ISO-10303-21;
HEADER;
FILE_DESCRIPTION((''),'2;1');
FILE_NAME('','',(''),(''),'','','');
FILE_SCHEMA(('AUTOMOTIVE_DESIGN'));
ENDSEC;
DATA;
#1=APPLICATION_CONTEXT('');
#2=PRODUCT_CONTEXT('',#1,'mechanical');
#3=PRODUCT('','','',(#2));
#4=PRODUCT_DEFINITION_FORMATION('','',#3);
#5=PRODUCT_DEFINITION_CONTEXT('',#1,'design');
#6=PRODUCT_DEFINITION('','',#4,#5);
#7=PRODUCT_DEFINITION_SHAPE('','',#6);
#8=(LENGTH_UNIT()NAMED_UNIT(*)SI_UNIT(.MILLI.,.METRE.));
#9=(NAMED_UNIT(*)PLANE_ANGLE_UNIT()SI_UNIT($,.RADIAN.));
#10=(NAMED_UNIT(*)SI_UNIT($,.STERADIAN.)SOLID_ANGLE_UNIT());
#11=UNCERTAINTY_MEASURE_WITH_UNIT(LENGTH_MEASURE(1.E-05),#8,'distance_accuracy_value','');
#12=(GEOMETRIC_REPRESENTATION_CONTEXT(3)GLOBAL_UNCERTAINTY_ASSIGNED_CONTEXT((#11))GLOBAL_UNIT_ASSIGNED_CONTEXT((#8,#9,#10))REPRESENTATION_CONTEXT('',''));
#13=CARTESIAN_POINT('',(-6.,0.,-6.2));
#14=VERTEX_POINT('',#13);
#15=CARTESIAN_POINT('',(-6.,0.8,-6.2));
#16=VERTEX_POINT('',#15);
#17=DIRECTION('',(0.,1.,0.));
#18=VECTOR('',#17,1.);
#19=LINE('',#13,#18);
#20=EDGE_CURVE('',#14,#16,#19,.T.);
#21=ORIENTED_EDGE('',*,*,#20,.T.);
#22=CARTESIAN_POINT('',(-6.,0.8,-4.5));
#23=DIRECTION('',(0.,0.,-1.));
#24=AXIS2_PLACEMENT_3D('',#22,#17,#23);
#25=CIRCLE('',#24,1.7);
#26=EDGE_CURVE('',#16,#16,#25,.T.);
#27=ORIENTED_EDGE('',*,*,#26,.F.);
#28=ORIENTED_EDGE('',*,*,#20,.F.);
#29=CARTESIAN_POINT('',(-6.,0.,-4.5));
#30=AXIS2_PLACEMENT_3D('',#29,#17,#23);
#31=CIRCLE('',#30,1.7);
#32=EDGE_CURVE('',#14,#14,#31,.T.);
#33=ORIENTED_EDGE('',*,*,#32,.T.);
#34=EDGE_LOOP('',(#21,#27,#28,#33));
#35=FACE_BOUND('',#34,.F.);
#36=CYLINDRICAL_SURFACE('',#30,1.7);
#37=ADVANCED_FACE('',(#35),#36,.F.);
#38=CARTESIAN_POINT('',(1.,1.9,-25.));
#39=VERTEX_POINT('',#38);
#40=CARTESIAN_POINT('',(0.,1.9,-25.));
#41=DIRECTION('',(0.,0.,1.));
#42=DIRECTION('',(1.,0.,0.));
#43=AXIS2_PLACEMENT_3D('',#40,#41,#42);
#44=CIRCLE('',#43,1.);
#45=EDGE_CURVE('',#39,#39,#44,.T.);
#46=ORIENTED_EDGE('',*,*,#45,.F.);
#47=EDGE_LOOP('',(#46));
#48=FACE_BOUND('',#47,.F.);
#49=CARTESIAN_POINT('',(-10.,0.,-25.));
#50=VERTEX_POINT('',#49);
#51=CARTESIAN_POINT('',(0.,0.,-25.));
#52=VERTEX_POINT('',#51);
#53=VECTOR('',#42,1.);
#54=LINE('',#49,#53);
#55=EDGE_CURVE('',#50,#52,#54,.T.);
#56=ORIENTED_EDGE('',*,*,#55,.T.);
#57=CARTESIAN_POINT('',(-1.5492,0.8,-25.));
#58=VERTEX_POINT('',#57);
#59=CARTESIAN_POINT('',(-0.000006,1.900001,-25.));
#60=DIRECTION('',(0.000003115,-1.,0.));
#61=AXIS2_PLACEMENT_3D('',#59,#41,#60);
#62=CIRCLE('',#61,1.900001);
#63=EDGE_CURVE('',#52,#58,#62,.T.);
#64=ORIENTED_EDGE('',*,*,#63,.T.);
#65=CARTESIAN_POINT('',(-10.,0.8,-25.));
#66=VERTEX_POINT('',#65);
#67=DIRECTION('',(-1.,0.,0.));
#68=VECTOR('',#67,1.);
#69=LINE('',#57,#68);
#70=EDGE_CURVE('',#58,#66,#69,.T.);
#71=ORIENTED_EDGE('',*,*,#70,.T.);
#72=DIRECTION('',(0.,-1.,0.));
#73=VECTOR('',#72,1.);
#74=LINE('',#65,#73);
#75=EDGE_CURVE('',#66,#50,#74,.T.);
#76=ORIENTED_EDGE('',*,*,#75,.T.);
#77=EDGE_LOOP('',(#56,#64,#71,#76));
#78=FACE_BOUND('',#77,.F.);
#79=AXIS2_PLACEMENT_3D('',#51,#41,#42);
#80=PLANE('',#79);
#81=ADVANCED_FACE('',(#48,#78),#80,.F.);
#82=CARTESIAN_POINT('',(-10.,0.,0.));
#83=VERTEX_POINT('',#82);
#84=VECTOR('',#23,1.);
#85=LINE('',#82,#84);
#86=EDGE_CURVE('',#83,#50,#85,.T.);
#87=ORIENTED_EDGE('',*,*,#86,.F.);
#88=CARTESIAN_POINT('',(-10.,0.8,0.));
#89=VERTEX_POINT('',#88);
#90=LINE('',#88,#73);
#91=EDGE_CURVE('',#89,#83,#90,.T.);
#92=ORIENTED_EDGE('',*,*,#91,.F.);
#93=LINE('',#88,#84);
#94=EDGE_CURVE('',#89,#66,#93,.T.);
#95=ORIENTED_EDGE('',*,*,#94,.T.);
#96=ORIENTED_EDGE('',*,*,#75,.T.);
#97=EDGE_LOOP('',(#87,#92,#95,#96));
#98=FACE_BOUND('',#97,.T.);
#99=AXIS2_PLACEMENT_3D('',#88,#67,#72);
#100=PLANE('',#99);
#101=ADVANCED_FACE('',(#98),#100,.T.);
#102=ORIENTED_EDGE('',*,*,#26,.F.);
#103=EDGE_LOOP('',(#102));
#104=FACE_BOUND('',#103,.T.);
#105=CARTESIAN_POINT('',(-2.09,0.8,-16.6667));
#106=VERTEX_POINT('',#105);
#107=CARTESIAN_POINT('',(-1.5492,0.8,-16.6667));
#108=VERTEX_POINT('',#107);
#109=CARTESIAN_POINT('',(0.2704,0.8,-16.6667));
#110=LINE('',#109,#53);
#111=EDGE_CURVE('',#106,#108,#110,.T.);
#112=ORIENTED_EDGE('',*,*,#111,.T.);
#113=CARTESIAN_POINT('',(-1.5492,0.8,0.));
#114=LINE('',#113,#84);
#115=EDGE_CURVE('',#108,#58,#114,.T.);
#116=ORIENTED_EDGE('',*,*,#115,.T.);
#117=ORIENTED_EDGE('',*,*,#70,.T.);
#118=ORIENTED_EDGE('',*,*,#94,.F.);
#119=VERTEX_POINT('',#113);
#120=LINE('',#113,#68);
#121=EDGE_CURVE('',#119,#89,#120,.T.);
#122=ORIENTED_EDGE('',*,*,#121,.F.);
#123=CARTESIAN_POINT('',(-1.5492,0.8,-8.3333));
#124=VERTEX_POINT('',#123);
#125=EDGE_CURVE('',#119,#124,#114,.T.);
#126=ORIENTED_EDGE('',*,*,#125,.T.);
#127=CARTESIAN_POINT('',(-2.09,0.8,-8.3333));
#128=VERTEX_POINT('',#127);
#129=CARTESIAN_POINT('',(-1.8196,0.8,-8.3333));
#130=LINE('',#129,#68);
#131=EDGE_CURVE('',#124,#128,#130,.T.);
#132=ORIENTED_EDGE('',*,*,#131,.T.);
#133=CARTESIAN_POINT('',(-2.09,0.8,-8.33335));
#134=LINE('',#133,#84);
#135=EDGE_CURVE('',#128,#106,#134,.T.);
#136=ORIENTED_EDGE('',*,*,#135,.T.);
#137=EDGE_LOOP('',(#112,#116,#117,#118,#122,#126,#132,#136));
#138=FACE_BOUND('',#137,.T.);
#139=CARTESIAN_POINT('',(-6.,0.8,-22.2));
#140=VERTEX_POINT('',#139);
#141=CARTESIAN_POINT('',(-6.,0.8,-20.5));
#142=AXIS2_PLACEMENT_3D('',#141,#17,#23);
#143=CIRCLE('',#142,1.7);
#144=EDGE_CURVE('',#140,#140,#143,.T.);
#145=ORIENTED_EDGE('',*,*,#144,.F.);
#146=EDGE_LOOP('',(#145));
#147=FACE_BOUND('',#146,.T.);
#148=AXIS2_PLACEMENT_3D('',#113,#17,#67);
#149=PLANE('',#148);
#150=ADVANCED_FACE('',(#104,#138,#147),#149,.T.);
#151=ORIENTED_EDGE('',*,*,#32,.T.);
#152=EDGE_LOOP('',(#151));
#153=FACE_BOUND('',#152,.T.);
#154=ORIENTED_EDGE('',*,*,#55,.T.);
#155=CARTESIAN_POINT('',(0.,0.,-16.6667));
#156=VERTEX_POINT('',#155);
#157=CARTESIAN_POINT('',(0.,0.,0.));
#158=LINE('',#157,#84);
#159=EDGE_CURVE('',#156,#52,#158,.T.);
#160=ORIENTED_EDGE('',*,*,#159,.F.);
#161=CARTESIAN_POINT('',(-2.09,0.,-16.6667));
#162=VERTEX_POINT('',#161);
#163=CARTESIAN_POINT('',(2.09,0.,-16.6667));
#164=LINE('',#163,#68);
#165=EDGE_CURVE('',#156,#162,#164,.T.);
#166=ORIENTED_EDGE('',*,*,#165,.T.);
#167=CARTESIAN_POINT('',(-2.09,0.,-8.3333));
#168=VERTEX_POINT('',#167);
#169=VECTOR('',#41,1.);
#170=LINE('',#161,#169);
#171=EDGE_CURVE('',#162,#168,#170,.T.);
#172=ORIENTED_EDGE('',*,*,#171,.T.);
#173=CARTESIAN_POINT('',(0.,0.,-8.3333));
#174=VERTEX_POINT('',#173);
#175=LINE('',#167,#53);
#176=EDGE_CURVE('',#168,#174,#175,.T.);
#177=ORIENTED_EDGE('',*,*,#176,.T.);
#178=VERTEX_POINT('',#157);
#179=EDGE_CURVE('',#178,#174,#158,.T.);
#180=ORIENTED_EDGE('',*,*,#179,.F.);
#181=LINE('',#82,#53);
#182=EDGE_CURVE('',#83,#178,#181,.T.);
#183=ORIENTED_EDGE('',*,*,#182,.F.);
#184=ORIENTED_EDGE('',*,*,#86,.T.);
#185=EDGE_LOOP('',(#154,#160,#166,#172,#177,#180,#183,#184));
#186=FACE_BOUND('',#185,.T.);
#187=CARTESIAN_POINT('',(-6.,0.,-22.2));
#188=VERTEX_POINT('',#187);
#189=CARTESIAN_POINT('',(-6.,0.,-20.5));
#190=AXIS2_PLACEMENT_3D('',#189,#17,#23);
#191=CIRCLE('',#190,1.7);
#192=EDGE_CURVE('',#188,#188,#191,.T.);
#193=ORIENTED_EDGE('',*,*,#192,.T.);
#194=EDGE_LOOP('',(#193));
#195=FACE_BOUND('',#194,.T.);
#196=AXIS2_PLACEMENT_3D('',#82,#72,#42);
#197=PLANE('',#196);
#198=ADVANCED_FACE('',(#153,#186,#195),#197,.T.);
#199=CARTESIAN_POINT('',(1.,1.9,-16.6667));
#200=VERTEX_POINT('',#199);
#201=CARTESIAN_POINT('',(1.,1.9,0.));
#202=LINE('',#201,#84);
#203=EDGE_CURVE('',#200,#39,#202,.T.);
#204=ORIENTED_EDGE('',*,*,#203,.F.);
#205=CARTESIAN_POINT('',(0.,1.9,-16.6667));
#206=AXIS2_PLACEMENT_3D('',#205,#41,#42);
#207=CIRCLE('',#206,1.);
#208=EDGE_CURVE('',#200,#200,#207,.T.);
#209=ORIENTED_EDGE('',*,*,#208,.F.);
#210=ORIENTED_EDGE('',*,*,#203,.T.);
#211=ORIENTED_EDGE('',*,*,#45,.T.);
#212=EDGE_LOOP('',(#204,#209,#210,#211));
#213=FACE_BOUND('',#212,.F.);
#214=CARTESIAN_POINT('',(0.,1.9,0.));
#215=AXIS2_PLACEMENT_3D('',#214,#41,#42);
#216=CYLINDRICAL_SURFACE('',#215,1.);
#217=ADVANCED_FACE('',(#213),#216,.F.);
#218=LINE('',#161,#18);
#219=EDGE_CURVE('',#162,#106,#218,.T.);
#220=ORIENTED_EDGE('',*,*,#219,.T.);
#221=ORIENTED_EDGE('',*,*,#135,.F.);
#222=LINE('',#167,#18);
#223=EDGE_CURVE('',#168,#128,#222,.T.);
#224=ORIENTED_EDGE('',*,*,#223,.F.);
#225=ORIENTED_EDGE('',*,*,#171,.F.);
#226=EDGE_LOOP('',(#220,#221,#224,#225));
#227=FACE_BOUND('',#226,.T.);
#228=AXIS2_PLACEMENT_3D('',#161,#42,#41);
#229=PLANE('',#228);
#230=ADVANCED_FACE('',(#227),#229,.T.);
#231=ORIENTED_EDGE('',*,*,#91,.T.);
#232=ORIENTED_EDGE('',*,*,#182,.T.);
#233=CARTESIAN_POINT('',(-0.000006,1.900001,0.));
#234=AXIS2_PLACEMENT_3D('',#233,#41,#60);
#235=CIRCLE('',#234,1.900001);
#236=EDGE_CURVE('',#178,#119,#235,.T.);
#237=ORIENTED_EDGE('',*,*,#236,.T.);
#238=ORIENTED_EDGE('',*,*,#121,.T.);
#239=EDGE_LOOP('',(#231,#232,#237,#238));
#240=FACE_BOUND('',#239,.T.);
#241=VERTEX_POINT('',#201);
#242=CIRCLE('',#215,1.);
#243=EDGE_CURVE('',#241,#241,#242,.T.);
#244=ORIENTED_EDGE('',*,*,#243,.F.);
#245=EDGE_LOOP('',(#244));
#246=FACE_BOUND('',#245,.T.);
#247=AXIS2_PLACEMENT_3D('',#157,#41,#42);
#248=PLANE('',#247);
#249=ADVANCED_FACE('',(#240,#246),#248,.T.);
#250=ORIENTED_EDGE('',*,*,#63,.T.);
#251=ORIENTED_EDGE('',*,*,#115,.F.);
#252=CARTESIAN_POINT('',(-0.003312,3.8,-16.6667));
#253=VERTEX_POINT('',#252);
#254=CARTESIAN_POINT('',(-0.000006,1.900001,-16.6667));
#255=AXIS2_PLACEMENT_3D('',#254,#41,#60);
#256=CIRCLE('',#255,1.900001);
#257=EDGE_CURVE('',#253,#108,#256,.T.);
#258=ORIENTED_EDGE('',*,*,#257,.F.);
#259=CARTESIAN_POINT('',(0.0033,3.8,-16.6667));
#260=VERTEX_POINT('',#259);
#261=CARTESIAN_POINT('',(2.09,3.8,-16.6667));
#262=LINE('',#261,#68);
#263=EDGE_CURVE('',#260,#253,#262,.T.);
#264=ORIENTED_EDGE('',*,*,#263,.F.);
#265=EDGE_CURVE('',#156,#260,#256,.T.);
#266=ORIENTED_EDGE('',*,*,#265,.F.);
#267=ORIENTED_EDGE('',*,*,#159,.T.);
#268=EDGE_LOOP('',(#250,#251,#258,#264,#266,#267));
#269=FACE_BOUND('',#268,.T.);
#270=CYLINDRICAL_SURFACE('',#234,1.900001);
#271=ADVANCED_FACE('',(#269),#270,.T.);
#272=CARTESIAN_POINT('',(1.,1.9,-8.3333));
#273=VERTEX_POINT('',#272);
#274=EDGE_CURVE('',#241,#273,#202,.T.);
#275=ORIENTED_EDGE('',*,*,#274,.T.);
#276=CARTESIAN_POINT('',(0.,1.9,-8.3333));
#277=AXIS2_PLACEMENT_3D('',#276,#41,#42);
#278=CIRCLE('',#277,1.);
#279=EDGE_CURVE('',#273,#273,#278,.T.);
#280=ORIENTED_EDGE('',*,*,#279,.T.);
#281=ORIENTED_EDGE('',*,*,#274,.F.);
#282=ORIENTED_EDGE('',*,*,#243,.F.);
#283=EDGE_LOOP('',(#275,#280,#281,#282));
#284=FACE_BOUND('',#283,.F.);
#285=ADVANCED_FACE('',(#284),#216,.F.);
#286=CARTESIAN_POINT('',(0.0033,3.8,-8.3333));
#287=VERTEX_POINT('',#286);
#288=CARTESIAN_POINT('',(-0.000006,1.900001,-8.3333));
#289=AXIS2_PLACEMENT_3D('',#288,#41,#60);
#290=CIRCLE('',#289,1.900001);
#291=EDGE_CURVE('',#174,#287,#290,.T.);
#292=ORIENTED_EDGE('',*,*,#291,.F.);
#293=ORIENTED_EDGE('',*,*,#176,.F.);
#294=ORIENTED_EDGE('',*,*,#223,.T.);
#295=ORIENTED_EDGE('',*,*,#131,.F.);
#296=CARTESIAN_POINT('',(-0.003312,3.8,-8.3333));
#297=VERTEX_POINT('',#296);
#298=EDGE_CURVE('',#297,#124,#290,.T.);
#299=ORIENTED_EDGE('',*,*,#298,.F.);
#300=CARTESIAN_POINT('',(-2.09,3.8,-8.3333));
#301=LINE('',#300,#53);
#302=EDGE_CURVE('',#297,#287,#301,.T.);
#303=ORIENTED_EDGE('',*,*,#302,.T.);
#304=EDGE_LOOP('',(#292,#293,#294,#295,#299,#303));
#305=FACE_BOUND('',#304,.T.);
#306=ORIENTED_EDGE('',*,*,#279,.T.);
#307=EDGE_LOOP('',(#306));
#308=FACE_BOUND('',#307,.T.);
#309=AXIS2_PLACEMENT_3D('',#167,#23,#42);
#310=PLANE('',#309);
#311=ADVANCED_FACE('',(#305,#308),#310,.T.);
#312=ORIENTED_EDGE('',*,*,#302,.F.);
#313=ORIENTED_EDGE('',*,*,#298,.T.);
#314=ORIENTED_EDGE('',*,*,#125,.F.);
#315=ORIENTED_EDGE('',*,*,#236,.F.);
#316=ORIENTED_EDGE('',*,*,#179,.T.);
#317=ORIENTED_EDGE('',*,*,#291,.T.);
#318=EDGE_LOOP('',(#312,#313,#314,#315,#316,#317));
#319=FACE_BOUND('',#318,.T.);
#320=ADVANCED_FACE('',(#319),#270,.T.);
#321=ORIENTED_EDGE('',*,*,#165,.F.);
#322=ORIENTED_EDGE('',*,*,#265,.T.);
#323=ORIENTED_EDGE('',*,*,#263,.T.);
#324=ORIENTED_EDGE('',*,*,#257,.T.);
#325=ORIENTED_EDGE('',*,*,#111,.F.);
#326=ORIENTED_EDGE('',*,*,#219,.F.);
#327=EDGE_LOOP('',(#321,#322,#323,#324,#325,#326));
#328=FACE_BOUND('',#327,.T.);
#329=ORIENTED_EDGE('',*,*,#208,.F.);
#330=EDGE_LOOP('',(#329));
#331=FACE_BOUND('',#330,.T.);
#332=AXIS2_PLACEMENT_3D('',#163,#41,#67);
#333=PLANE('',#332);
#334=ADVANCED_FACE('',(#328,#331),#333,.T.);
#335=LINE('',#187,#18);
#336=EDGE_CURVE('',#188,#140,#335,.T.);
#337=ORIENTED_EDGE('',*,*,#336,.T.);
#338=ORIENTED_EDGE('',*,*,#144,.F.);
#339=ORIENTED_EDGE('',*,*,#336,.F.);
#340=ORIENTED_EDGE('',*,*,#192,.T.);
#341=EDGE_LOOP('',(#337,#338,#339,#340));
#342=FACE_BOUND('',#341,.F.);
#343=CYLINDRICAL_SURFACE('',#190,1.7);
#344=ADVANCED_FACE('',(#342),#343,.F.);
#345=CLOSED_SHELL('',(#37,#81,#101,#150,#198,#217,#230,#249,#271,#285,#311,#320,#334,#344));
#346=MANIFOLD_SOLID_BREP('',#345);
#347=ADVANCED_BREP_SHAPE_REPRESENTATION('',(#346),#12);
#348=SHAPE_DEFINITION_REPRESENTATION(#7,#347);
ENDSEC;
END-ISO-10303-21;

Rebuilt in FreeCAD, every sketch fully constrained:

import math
import FreeCAD as App
import Part
import Sketcher

V = App.Vector


def add_polygon(sketch, points):
    """Adds a closed chain of lines whose ends are joined by coincident constraints."""
    first, n = sketch.GeometryCount, len(points)
    for a, b in zip(points, points[1:] + points[:1]):
        sketch.addGeometry(Part.LineSegment(App.Vector(*a, 0), App.Vector(*b, 0)), False)
    for i in range(n):
        sketch.addConstraint(Sketcher.Constraint("Coincident", first + i, 2, first + (i + 1) % n, 1))

doc = App.newDocument("Part")
params = doc.addObject("Spreadsheet::Sheet", "Params")
for row, (alias, value) in enumerate([
    ("sketch1_diameter", "2 mm"),
    ("sketch1_radius", "1.9 mm"),
    ("sketch1_width", "10 mm"),
    ("sketch1_height", "0.8 mm"),
    ("pad1_length", "25 mm"),
    ("sketch2_height", "25 mm"),
    ("sketch2_width", "4.18 mm"),
    ("sketch2_width2", "3.91 mm"),
    ("pocket1_length", "3.8 mm"),
    ("sketch3_diameter", "3.4 mm"),
    ("hole_diameter", "3.4 mm"),
    ("hole_depth", "0.8 mm"),
    ("linearpattern_pitch", "16 mm"),
], start=1):
    params.set(f"A{row}", alias)
    params.set(f"B{row}", "=" + value)
    params.setAlias(f"B{row}", alias)

body = doc.addObject("PartDesign::Body", "Body")

# Sketch on XY plane
sketch1 = body.newObject("Sketcher::SketchObject", "Sketch")
sketch1.AttachmentSupport = (doc.getObject("XY_Plane"), [""])
sketch1.MapMode = "FlatFace"
sketch1.addGeometry([
    Part.LineSegment(V(-1.5492, 0.8, 0), V(-10, 0.8, 0)),  # 0
    Part.LineSegment(V(-10, 0.8, 0), V(-10, 0, 0)),  # 1
    Part.LineSegment(V(-10, 0, 0), V(0, 0, 0)),  # 2
    Part.ArcOfCircle(Part.Circle(V(0, 1.9, 0), V(0, 0, 1), 1.9), math.radians(-90), math.radians(215.376424)),  # 3
    Part.Circle(V(0, 1.9, 0), V(0, 0, 1), 1),  # 4
], False)
sketch1.addConstraint([
    Sketcher.Constraint("Coincident", 0, 2, 1, 1),
    Sketcher.Constraint("Coincident", 1, 2, 2, 1),
    Sketcher.Constraint("Tangent", 2, 2, 3, 1),
    Sketcher.Constraint("Coincident", 3, 2, 0, 1),
    Sketcher.Constraint("Horizontal", 0),
    Sketcher.Constraint("Vertical", 1),
    Sketcher.Constraint("Horizontal", 2),
    Sketcher.Constraint("Coincident", 2, 2, -1, 1),
    Sketcher.Constraint("Coincident", 4, 3, 3, 3),
    Sketcher.Constraint("Diameter", 4, 2.0),
    Sketcher.Constraint("Radius", 3, 1.9),
    Sketcher.Constraint("DistanceX", 2, 1, 2, 2, 10.0),
    Sketcher.Constraint("DistanceY", 1, 2, 1, 1, 0.8),
])
sketch1.setExpression("Constraints[9]", "Params.sketch1_diameter")
sketch1.setExpression("Constraints[10]", "Params.sketch1_radius")
sketch1.setExpression("Constraints[11]", "Params.sketch1_width")
sketch1.setExpression("Constraints[12]", "Params.sketch1_height")
pad1 = body.newObject("PartDesign::Pad", "Pad")
pad1.Profile = sketch1
pad1.setExpression("Length", "Params.pad1_length")
pad1.Reversed = True

# Sketch on XZ plane
sketch2 = body.newObject("Sketcher::SketchObject", "Sketch001")
sketch2.AttachmentSupport = (doc.getObject("XZ_Plane"), [""])
sketch2.MapMode = "FlatFace"
add_polygon(sketch2, [(2.09, -16.6667), (-2.09, -16.6667), (-2.09, -8.3333), (2.09, -8.3333), (2.09, 0), (6, 0), (6, -25), (2.09, -25)])  # lines 0-7
sketch2.addConstraint([
    Sketcher.Constraint("Horizontal", 0),
    Sketcher.Constraint("Vertical", 1),
    Sketcher.Constraint("Horizontal", 2),
    Sketcher.Constraint("Vertical", 3),
    Sketcher.Constraint("Horizontal", 4),
    Sketcher.Constraint("Vertical", 5),
    Sketcher.Constraint("Horizontal", 6),
    Sketcher.Constraint("Vertical", 7),
    Sketcher.Constraint("PointOnObject", 3, 2, -1),
    Sketcher.Constraint("Vertical", 3, 2, 6, 2),
    Sketcher.Constraint("Equal", 1, 3),
    Sketcher.Constraint("Equal", 3, 7),
    Sketcher.Constraint("DistanceY", 5, 2, 5, 1, 25.0),
    Sketcher.Constraint("DistanceX", -1, 1, 4, 2, 6.0),
    Sketcher.Constraint("DistanceX", 0, 2, 0, 1, 4.18),
    Sketcher.Constraint("DistanceX", 4, 1, 4, 2, 3.91),
])
sketch2.setExpression("Constraints[20]", "Params.sketch2_height")
sketch2.setExpression("Constraints[22]", "Params.sketch2_width")
sketch2.setExpression("Constraints[23]", "Params.sketch2_width2")
pocket1 = body.newObject("PartDesign::Pocket", "Pocket")
pocket1.Profile = sketch2
pocket1.setExpression("Length", "Params.pocket1_length")

# Sketch on XZ plane
sketch3 = body.newObject("Sketcher::SketchObject", "Sketch002")
sketch3.AttachmentSupport = (doc.getObject("XZ_Plane"), [""])
sketch3.MapMode = "FlatFace"
sketch3.addGeometry(Part.Circle(V(-6, -20.5, 0), V(0, 0, 1), 1.7), False)
sketch3.addConstraint([
    Sketcher.Constraint("Diameter", 0, 3.4),
    Sketcher.Constraint("DistanceX", 0, 3, -1, 1, 6.0),
    Sketcher.Constraint("DistanceY", 0, 3, -1, 1, 20.5),
])
sketch3.setExpression("Constraints[0]", "Params.sketch3_diameter")
doc.recompute()
hole = body.newObject("PartDesign::Hole", "Hole")
hole.Profile = sketch3
hole.ThreadType = "None"
hole.setExpression("Diameter", "Params.hole_diameter")
hole.DepthType = "Dimension"
hole.setExpression("Depth", "Params.hole_depth")
hole.DrillPoint = "Flat"
doc.recompute()

linearpattern = body.newObject("PartDesign::LinearPattern", "LinearPattern")
linearpattern.Originals = [hole]
linearpattern.Direction = (doc.getObject("Z_Axis"), [""])
linearpattern.Mode = "offset"
linearpattern.setExpression("Offset", "Params.linearpattern_pitch")
linearpattern.Occurrences = 2
body.Tip = linearpattern

doc.recompute()
